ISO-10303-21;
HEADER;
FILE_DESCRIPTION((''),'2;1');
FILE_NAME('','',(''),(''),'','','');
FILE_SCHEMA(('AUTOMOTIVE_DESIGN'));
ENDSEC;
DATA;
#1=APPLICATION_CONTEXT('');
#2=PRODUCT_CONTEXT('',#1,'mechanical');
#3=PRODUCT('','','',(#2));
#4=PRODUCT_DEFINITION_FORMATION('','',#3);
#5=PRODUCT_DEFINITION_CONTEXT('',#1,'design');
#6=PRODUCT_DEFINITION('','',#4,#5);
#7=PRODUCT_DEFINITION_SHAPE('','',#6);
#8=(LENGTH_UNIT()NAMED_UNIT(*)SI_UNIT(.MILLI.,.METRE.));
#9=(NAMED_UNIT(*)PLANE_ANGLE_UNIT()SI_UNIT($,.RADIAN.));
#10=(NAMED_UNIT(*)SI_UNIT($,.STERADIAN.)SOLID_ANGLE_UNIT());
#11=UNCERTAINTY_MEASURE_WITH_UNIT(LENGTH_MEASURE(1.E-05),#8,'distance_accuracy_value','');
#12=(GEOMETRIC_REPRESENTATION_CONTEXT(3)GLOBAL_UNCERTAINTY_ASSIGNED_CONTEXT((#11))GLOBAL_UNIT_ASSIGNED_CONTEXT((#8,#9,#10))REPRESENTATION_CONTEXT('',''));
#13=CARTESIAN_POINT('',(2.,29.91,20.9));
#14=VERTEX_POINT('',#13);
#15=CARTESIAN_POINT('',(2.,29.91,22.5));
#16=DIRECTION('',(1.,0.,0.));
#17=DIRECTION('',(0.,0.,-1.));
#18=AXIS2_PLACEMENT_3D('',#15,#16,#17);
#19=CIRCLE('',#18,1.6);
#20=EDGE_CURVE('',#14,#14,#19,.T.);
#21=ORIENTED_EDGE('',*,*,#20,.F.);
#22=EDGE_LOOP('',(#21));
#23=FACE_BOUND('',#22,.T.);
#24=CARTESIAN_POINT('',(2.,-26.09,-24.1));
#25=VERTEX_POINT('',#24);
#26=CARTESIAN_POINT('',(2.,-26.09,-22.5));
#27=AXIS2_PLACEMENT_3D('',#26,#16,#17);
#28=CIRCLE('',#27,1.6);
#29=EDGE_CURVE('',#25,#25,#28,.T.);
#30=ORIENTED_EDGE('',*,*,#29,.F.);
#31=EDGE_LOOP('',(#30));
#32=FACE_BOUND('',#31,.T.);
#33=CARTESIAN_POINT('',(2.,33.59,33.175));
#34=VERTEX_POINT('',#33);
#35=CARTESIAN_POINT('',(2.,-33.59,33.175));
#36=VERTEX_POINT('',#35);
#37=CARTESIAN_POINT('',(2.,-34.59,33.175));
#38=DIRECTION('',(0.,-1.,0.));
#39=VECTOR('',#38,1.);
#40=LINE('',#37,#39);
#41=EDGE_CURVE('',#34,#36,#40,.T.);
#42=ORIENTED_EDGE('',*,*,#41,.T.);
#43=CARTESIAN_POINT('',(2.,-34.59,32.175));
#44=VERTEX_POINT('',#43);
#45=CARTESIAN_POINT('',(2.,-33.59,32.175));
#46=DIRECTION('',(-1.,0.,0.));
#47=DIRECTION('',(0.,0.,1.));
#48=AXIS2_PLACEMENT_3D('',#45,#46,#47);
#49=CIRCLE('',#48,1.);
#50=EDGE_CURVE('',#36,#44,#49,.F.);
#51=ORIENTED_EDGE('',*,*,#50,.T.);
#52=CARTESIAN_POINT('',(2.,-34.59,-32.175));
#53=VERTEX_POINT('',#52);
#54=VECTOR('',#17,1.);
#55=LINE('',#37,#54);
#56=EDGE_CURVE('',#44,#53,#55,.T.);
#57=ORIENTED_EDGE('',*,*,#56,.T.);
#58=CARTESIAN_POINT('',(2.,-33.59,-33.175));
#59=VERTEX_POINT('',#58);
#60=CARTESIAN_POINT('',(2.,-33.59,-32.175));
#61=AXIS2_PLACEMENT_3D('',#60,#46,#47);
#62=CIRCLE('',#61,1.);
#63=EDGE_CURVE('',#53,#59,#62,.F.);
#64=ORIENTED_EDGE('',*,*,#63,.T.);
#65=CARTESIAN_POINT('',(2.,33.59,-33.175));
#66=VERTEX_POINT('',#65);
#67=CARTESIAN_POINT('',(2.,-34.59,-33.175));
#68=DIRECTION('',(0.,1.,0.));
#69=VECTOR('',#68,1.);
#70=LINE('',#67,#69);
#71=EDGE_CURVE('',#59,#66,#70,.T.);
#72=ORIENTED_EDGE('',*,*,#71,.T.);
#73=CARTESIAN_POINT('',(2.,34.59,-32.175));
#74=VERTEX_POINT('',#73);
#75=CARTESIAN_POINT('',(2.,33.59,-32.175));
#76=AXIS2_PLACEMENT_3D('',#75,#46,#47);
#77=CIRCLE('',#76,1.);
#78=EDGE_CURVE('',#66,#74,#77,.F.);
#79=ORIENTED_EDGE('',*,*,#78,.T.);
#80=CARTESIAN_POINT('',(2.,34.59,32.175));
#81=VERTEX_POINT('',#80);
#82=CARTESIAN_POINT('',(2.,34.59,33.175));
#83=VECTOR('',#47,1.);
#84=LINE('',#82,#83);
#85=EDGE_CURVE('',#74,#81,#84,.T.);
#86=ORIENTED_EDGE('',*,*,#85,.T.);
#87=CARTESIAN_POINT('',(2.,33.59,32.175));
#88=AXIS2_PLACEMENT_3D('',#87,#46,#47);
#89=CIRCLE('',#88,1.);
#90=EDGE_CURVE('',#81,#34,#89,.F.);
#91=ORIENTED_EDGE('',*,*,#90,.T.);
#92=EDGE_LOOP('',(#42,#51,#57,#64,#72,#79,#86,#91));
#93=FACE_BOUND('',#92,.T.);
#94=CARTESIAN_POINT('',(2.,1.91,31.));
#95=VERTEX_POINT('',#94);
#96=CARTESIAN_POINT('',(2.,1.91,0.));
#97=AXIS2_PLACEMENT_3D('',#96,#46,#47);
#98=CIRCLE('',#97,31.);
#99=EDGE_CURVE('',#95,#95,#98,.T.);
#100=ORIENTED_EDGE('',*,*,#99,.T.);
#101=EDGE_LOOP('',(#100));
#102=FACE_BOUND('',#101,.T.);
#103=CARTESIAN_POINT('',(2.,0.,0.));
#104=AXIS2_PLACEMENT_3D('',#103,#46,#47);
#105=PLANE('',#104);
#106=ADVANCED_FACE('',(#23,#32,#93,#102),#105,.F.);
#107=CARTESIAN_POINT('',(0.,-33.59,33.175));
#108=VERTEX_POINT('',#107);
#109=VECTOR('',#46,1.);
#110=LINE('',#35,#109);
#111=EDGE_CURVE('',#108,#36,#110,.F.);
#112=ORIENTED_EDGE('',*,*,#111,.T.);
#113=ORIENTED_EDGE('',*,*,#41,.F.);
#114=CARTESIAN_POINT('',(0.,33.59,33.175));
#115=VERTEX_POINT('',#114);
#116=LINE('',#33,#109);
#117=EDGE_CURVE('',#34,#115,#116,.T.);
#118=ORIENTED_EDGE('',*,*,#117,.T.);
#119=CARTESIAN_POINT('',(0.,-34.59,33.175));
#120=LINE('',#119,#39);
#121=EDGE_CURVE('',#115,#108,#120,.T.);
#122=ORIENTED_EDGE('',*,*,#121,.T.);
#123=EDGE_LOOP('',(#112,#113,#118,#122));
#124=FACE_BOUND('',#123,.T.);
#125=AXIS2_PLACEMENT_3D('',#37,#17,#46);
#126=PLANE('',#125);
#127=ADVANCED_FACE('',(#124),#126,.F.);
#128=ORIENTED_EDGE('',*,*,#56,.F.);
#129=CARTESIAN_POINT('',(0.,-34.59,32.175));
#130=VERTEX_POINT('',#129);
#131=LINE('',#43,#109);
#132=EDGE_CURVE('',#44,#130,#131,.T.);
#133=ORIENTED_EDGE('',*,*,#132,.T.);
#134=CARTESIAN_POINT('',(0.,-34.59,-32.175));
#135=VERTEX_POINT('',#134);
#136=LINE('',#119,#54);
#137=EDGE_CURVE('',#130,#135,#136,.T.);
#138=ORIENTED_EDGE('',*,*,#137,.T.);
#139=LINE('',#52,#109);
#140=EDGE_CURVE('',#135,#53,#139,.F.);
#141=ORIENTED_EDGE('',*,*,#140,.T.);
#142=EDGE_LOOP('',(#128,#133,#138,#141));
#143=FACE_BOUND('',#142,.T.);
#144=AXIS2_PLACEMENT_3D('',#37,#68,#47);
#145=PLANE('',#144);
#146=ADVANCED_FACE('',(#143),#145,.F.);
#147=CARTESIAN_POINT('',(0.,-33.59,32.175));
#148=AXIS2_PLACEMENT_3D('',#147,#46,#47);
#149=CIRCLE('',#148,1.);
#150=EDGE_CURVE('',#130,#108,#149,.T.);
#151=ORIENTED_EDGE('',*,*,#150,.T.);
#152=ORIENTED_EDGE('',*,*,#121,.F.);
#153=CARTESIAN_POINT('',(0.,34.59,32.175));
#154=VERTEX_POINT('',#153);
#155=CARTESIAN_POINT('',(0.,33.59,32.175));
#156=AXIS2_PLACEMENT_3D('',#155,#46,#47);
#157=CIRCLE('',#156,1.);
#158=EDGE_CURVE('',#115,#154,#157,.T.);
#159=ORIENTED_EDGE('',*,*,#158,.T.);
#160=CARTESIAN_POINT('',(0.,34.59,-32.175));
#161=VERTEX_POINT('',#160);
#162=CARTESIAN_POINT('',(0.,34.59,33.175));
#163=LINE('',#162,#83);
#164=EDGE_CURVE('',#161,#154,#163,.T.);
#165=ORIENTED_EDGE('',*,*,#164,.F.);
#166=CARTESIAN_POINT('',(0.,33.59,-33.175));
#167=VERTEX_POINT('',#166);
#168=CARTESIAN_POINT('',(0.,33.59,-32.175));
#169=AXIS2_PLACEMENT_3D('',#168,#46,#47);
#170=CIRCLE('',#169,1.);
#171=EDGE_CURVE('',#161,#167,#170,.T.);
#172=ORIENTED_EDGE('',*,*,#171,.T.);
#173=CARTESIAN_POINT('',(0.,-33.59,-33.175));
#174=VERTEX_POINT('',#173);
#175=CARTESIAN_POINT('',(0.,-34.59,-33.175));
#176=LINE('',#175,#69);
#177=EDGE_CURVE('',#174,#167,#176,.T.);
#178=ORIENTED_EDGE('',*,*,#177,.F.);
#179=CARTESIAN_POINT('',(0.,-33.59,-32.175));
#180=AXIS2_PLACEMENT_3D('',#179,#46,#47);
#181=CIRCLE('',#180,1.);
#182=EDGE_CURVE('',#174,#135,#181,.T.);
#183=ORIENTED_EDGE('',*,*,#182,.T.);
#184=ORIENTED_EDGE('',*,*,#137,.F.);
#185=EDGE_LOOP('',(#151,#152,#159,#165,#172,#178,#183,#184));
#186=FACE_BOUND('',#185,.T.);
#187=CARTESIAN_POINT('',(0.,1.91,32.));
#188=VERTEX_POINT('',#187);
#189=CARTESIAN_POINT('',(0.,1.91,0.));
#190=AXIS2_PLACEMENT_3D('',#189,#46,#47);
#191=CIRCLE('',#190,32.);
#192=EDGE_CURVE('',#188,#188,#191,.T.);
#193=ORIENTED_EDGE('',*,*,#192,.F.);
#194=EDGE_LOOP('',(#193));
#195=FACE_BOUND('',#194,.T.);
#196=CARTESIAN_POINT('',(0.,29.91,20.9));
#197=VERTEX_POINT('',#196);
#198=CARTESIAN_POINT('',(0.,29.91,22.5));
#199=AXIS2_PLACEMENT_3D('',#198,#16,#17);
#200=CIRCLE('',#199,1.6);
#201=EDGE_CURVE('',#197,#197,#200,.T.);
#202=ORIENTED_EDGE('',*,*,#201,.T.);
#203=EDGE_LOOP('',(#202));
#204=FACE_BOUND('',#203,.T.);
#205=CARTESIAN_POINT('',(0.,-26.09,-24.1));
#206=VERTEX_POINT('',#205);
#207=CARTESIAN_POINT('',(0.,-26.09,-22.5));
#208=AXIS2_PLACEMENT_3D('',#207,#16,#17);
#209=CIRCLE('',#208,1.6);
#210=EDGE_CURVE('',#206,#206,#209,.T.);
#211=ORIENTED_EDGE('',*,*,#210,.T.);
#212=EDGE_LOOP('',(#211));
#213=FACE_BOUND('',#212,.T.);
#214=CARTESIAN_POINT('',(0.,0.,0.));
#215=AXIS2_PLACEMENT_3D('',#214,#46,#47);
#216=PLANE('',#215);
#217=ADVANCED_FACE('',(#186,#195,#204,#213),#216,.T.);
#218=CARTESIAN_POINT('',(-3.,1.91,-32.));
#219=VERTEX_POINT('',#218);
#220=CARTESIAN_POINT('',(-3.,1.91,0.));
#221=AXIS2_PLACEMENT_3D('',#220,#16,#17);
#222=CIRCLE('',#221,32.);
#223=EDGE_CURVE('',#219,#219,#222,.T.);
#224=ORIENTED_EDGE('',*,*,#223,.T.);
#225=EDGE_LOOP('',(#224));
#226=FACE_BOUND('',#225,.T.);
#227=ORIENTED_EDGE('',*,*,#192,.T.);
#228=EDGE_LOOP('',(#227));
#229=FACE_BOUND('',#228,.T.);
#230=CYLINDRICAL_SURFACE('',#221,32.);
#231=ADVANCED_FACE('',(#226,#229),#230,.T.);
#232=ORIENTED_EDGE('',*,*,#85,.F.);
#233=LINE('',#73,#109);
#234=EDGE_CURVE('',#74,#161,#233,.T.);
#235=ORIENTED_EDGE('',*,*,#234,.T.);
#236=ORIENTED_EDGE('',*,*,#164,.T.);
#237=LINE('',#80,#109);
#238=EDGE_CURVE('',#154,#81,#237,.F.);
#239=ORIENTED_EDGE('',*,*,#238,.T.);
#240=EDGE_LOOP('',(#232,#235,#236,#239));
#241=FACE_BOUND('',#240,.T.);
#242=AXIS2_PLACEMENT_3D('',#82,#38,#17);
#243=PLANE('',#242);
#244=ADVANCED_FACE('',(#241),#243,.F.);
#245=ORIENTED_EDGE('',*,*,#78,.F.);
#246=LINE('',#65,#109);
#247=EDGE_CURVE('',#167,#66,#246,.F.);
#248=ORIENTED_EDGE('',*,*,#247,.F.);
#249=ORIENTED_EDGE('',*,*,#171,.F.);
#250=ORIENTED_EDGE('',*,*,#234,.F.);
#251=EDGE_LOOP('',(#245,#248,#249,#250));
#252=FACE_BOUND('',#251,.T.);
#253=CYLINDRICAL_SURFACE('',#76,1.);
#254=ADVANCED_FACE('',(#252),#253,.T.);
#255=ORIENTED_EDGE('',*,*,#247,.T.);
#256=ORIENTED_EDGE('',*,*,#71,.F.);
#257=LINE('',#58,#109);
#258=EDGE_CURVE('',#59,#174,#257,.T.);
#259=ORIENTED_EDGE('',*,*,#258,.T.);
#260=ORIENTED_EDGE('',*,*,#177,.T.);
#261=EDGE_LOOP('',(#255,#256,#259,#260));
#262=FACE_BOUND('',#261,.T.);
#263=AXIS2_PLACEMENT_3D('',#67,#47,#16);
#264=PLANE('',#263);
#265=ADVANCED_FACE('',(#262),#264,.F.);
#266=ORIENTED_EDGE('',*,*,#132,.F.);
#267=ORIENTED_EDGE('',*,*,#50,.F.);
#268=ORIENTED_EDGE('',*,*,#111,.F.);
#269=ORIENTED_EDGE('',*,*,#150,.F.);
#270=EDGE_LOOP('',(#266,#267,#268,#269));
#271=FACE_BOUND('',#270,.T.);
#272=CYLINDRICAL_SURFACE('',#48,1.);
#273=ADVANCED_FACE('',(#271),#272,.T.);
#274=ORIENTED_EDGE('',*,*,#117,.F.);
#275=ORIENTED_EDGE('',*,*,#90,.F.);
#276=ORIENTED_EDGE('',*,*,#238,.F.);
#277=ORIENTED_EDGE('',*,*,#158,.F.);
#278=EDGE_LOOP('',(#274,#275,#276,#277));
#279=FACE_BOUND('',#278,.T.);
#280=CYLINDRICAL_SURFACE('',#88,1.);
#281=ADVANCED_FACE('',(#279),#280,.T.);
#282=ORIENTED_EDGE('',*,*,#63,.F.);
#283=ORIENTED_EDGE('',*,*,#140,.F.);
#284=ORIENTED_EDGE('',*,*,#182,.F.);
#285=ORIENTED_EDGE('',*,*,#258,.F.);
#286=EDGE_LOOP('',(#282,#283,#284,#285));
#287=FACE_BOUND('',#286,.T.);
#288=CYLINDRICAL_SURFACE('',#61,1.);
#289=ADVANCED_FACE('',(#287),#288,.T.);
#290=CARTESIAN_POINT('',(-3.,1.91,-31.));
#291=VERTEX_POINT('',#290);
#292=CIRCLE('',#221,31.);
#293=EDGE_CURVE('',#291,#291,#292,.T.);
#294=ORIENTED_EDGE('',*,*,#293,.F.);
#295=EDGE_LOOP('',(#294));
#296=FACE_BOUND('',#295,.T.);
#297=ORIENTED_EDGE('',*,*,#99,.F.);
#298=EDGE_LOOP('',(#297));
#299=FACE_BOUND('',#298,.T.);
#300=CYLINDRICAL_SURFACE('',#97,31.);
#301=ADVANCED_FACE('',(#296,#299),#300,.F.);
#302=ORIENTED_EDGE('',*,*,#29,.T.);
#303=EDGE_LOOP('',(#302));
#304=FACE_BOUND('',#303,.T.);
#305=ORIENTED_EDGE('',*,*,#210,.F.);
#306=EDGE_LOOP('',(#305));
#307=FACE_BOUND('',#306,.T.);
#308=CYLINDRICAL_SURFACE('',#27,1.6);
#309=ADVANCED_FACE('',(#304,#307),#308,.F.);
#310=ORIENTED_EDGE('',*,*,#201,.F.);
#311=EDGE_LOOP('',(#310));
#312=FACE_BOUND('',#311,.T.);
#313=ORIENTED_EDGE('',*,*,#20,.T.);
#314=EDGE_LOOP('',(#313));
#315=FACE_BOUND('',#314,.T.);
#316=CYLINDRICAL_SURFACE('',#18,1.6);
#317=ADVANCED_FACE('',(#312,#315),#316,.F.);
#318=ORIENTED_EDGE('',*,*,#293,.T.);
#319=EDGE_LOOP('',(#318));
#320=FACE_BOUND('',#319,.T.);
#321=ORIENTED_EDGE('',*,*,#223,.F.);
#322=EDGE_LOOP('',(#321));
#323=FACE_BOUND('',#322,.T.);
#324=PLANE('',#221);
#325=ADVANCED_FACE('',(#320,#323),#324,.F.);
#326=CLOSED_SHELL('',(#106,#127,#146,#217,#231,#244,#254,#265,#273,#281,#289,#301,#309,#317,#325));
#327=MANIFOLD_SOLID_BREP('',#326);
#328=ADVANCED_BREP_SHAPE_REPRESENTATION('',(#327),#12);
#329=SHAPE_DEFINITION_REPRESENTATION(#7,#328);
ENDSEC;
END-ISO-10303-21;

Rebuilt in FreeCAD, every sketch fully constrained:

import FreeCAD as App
import Part
import Sketcher

V = App.Vector


def edges_at(feature, points):
    """Names of the edges that pass closest to the given points."""
    edges = feature.Shape.Edges
    near = lambda p: min(range(len(edges)), key=lambda i: edges[i].distToShape(Part.Vertex(*p))[0])
    return sorted({f"Edge{near(p) + 1}" for p in points})


def add_polygon(sketch, points):
    """Adds a closed chain of lines whose ends are joined by coincident constraints."""
    first, n = sketch.GeometryCount, len(points)
    for a, b in zip(points, points[1:] + points[:1]):
        sketch.addGeometry(Part.LineSegment(App.Vector(*a, 0), App.Vector(*b, 0)), False)
    for i in range(n):
        sketch.addConstraint(Sketcher.Constraint("Coincident", first + i, 2, first + (i + 1) % n, 1))

doc = App.newDocument("Part")
body = doc.addObject("PartDesign::Body", "Body")

sketch1 = doc.addObject("Sketcher::SketchObject", "Sketch")
body.addObject(sketch1)
sketch1.AttachmentSupport = (doc.YZ_Plane, [""])
sketch1.MapMode = "FlatFace"
add_polygon(sketch1, [(35, 33), (-35, 33), (-35, -33), (35, -33)])
sketch1.addConstraint([
    Sketcher.Constraint("Horizontal", 0),
    Sketcher.Constraint("Vertical", 1),
    Sketcher.Constraint("Horizontal", 2),
    Sketcher.Constraint("Vertical", 3),
    Sketcher.Constraint("Symmetric", 0, 2, 2, 2, -1, 1),
    Sketcher.Constraint("DistanceX", 0, 2, 0, 1, 69.18),
    Sketcher.Constraint("DistanceY", 1, 2, 1, 1, 66.35),
])
pad1 = doc.addObject("PartDesign::Pad", "Pad")
body.addObject(pad1)
pad1.Profile = sketch1
pad1.Length = 2

sketch2 = doc.addObject("Sketcher::SketchObject", "Sketch001")
body.addObject(sketch2)
sketch2.AttachmentSupport = (doc.YZ_Plane, [""])
sketch2.MapMode = "FlatFace"
sketch2.addGeometry(Part.Circle(V(2, 0, 0), V(0, 0, 1), 31), False)
sketch2.addConstraint([
    Sketcher.Constraint("PointOnObject", 0, 3, -1),
    Sketcher.Constraint("Diameter", 0, 62.0),
    Sketcher.Constraint("DistanceX", -1, 1, 0, 3, 1.91),
])
pocket1 = doc.addObject("PartDesign::Pocket", "Pocket")
body.addObject(pocket1)
pocket1.Profile = sketch2
pocket1.Type = "ThroughAll"
pocket1.Reversed = True

sketch3 = doc.addObject("Sketcher::SketchObject", "Sketch002")
body.addObject(sketch3)
sketch3.AttachmentSupport = (doc.YZ_Plane, [""])
sketch3.MapMode = "FlatFace"
sketch3.AttachmentOffset = App.Placement(V(0, 0, 2), App.Rotation())
sketch3.addGeometry([
    Part.Circle(V(29.9, 22.5, 0), V(0, 0, 1), 1.6),
    Part.Circle(V(-26.1, -22.5, 0), V(0, 0, 1), 1.6),
], False)
sketch3.addConstraint([
    Sketcher.Constraint("Equal", 0, 1),
    Sketcher.Constraint("Diameter", 0, 3.2),
    Sketcher.Constraint("DistanceX", 1, 3, 0, 3, 56.0),
    Sketcher.Constraint("DistanceY", 1, 3, 0, 3, 45.0),
    Sketcher.Constraint("DistanceY", -1, 1, 0, 3, 22.5),
    Sketcher.Constraint("DistanceX", -1, 1, 0, 3, 29.91),
])
doc.recompute()
hole = doc.addObject("PartDesign::Hole", "Hole")
body.addObject(hole)
hole.Profile = sketch3
hole.ThreadType = "None"
hole.Diameter = 3.2
hole.DepthType = "ThroughAll"

sketch4 = doc.addObject("Sketcher::SketchObject", "Sketch003")
body.addObject(sketch4)
sketch4.AttachmentSupport = (doc.YZ_Plane, [""])
sketch4.MapMode = "FlatFace"
sketch4.AttachmentOffset = App.Placement(V(0, 0, -3), App.Rotation())
sketch4.addGeometry([
    Part.Circle(V(2, 0, 0), V(0, 0, 1), 32),
    Part.Circle(V(2, 0, 0), V(0, 0, 1), 31),
], False)
sketch4.addConstraint([
    Sketcher.Constraint("Coincident", 1, 3, 0, 3),
    Sketcher.Constraint("PointOnObject", 0, 3, -1),
    Sketcher.Constraint("Diameter", 0, 64.0),
    Sketcher.Constraint("Diameter", 1, 62.0),
    Sketcher.Constraint("DistanceX", -1, 1, 0, 3, 1.91),
])
pad2 = doc.addObject("PartDesign::Pad", "Pad001")
body.addObject(pad2)
pad2.Profile = sketch4
pad2.Length = 3
doc.recompute()

fillet = doc.addObject("PartDesign::Fillet", "Fillet")
body.addObject(fillet)
fillet.Base = (pad2, edges_at(pad2, [
    (1, -34.59, -33.175),
    (1, -34.59, 33.175),
    (1, 34.59, 33.175),
    (1, 34.59, -33.175),
]))
fillet.Radius = 1

doc.recompute()
